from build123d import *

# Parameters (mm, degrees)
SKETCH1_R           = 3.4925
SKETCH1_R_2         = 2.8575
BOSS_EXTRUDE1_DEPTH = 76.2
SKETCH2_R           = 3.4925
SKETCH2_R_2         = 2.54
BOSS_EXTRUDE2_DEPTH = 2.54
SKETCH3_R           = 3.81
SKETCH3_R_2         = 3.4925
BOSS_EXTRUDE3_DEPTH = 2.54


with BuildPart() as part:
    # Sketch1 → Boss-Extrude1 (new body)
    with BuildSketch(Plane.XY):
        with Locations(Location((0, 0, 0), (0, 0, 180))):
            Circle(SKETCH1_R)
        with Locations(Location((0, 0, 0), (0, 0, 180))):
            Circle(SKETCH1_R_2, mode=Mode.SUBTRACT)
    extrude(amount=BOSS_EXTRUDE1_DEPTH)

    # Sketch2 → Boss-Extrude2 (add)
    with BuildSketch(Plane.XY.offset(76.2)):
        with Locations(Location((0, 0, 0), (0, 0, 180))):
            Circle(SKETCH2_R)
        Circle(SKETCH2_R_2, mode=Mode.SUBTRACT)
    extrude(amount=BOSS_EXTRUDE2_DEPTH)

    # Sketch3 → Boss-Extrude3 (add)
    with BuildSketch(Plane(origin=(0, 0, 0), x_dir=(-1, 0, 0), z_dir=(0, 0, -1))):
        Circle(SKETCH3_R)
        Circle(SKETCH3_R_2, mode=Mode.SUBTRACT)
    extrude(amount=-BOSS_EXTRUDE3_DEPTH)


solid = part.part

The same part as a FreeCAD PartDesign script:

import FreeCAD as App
import Part
import Sketcher

V = App.Vector
Q = App.Units.Quantity

doc = App.newDocument("Part")
body = doc.addObject("PartDesign::Body", "Body")

# Sketch on XY plane
sketch1 = body.newObject("Sketcher::SketchObject", "Sketch")
sketch1.AttachmentSupport = (doc.getObject("XY_Plane"), [""])
sketch1.MapMode = "FlatFace"
sketch1.addGeometry([
    Part.Circle(V(0, 0, 0), V(0, 0, 1), 3.5),
    Part.Circle(V(0, 0, 0), V(0, 0, 1), 2.9),
], False)
sketch1.addConstraint([
    Sketcher.Constraint("Coincident", 0, 3, -1, 1),
    Sketcher.Constraint("Coincident", 1, 3, -1, 1),
    Sketcher.Constraint("Diameter", 0, Q("0.275 in")),
    Sketcher.Constraint("Diameter", 1, Q("0.225 in")),
])
pad1 = body.newObject("PartDesign::Pad", "Pad")
pad1.Profile = sketch1
pad1.Length = Q("3 in")

# Sketch on XY plane
sketch2 = body.newObject("Sketcher::SketchObject", "Sketch001")
sketch2.AttachmentSupport = (doc.getObject("XY_Plane"), [""])
sketch2.MapMode = "FlatFace"
sketch2.AttachmentOffset = App.Placement(V(0, 0, 3 * 25.4), App.Rotation())
sketch2.addGeometry([
    Part.Circle(V(0, 0, 0), V(0, 0, 1), 3.5),
    Part.Circle(V(0, 0, 0), V(0, 0, 1), 2.5),
], False)
sketch2.addConstraint([
    Sketcher.Constraint("Coincident", 0, 3, -1, 1),
    Sketcher.Constraint("Coincident", 1, 3, -1, 1),
    Sketcher.Constraint("Diameter", 1, Q("0.2 in")),
    Sketcher.Constraint("Diameter", 0, Q("0.275 in")),
])
pad2 = body.newObject("PartDesign::Pad", "Pad001")
pad2.Profile = sketch2
pad2.Length = Q("0.1 in")

# Sketch on XY plane
sketch3 = body.newObject("Sketcher::SketchObject", "Sketch002")
sketch3.AttachmentSupport = (doc.getObject("XY_Plane"), [""])
sketch3.MapMode = "FlatFace"
sketch3.addGeometry([
    Part.Circle(V(0, 0, 0), V(0, 0, 1), 3.8),
    Part.Circle(V(0, 0, 0), V(0, 0, 1), 3.5),
], False)
sketch3.addConstraint([
    Sketcher.Constraint("Coincident", 0, 3, -1, 1),
    Sketcher.Constraint("Coincident", 1, 3, -1, 1),
    Sketcher.Constraint("Diameter", 0, Q("0.3 in")),
    Sketcher.Constraint("Diameter", 1, Q("0.275 in")),
])
pad3 = body.newObject("PartDesign::Pad", "Pad002")
pad3.Profile = sketch3
pad3.Length = Q("0.1 in")

doc.recompute()
